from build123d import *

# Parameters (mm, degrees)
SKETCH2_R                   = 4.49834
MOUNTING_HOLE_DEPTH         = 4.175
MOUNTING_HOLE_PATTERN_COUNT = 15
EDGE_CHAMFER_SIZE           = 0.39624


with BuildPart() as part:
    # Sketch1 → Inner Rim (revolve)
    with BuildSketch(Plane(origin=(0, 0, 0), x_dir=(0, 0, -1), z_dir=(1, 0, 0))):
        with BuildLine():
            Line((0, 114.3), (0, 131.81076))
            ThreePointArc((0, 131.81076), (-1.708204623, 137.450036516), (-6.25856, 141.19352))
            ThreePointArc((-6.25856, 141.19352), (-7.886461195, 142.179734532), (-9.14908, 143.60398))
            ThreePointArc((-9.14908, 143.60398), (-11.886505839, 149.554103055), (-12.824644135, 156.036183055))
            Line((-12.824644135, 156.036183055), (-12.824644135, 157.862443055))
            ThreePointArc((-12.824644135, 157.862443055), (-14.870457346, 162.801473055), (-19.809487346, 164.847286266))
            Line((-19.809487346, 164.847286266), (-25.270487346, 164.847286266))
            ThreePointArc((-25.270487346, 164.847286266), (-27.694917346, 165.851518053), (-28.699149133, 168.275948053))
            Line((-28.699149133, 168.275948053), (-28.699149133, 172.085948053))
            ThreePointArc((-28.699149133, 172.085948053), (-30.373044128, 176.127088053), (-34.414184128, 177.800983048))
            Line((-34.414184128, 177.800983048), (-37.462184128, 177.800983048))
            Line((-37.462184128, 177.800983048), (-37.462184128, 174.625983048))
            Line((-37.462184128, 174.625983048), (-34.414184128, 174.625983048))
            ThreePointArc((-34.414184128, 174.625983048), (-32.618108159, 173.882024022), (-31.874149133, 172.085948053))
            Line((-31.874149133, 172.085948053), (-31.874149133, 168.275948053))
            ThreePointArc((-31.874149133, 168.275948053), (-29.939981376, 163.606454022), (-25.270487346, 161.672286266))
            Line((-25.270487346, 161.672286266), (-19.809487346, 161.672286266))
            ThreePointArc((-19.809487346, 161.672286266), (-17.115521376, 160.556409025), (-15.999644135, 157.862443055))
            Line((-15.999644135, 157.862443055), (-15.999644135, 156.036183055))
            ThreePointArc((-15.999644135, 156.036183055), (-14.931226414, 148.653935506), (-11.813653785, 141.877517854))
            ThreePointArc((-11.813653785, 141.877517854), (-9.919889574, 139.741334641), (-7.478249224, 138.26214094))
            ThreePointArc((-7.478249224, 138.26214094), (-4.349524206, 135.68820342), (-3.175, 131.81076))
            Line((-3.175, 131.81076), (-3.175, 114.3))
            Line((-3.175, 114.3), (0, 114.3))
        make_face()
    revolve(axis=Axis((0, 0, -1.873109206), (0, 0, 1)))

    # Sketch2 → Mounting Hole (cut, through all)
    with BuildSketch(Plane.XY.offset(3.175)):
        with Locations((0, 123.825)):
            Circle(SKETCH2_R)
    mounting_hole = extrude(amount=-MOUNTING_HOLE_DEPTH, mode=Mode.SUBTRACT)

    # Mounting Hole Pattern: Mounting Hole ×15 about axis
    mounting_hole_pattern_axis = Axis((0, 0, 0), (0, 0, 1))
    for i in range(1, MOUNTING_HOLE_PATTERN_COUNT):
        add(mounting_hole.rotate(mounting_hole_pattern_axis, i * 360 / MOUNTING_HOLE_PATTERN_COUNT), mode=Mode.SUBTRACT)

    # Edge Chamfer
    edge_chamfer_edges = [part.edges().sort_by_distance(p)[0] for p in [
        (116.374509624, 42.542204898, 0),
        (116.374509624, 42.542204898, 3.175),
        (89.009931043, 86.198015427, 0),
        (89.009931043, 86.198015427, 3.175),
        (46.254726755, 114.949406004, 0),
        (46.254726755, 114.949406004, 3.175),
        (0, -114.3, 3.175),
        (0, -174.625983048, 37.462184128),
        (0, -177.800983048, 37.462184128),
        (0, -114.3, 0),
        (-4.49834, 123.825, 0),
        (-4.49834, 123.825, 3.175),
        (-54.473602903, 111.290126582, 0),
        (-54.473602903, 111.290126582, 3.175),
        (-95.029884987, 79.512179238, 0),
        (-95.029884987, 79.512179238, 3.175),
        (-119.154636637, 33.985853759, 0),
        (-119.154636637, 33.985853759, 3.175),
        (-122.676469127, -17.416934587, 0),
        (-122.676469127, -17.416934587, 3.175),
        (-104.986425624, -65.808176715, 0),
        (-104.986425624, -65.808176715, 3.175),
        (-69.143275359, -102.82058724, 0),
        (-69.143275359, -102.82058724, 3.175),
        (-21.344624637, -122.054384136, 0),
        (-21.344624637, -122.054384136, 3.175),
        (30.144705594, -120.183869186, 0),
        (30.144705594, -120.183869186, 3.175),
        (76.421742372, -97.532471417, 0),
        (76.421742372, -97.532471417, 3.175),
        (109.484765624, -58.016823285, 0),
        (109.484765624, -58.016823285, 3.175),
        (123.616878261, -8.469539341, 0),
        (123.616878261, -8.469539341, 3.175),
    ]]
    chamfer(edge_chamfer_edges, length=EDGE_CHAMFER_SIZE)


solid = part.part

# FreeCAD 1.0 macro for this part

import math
import FreeCAD as App
import Part
import Sketcher

V = App.Vector
Q = App.Units.Quantity


def edges_at(feature, points):
    """Names of the edges that pass closest to the given points."""
    edges = feature.Shape.Edges
    near = lambda p: min(range(len(edges)), key=lambda i: edges[i].distToShape(Part.Vertex(*p))[0])
    return sorted({f"Edge{near(p) + 1}" for p in points})

doc = App.newDocument("Part")
body = doc.addObject("PartDesign::Body", "Body")

sketch1 = doc.addObject("Sketcher::SketchObject", "Sketch")
body.addObject(sketch1)
sketch1.AttachmentSupport = (doc.YZ_Plane, [""])
sketch1.MapMode = "FlatFace"
sketch1.addGeometry([
    Part.LineSegment(V(114.3, 0, 0), V(131.8, 0, 0)),
    Part.ArcOfCircle(Part.Circle(V(131.8, 10.2, 0), V(0, 0, 1), 10.2), math.radians(-90), math.radians(-23)),
    Part.ArcOfCircle(Part.Circle(V(147.1, 3.8, 0), V(0, 0, 1), 6.4), math.radians(123), math.radians(157)),
    Part.ArcOfCircle(Part.Circle(V(156, -10, 0), V(0, 0, 1), 22.9), math.radians(90), math.radians(123)),
    Part.LineSegment(V(156, 12.8, 0), V(157.9, 12.8, 0)),
    Part.ArcOfCircle(Part.Circle(V(157.9, 19.8, 0), V(0, 0, 1), 7), math.radians(-90), math.radians(0)),
    Part.LineSegment(V(164.8, 19.8, 0), V(164.8, 25.3, 0)),
    Part.ArcOfCircle(Part.Circle(V(168.3, 25.3, 0), V(0, 0, 1), 3.4), math.radians(90), math.radians(180)),
    Part.LineSegment(V(168.3, 28.7, 0), V(172.1, 28.7, 0)),
    Part.ArcOfCircle(Part.Circle(V(172.1, 34.4, 0), V(0, 0, 1), 5.7), math.radians(-90), math.radians(0)),
    Part.LineSegment(V(177.8, 34.4, 0), V(177.8, 37.5, 0)),
    Part.LineSegment(V(177.8, 37.5, 0), V(174.6, 37.5, 0)),
    Part.LineSegment(V(174.6, 37.5, 0), V(174.6, 34.4, 0)),
    Part.ArcOfCircle(Part.Circle(V(172.1, 34.4, 0), V(0, 0, 1), 2.5), math.radians(-90), math.radians(0)),
    Part.LineSegment(V(172.1, 31.9, 0), V(168.3, 31.9, 0)),
    Part.ArcOfCircle(Part.Circle(V(168.3, 25.3, 0), V(0, 0, 1), 6.6), math.radians(90), math.radians(180)),
    Part.LineSegment(V(161.7, 25.3, 0), V(161.7, 19.8, 0)),
    Part.ArcOfCircle(Part.Circle(V(157.9, 19.8, 0), V(0, 0, 1), 3.8), math.radians(-90), math.radians(0)),
    Part.LineSegment(V(157.9, 16, 0), V(156, 16, 0)),
    Part.ArcOfCircle(Part.Circle(V(156, -10, 0), V(0, 0, 1), 26), math.radians(90), math.radians(123)),
    Part.ArcOfCircle(Part.Circle(V(147.1, 3.8, 0), V(0, 0, 1), 9.5), math.radians(123), math.radians(157)),
    Part.ArcOfCircle(Part.Circle(V(131.8, 10.2, 0), V(0, 0, 1), 7), math.radians(-90), math.radians(-23)),
    Part.LineSegment(V(131.8, 3.2, 0), V(114.3, 3.2, 0)),
    Part.LineSegment(V(114.3, 3.2, 0), V(114.3, 0, 0)),
], False)
sketch1.addConstraint([
    Sketcher.Constraint("Tangent", 0, 2, 1, 1),
    Sketcher.Constraint("Tangent", 1, 2, 2, 2),
    Sketcher.Constraint("Tangent", 2, 1, 3, 2),
    Sketcher.Constraint("Tangent", 3, 1, 4, 1),
    Sketcher.Constraint("Tangent", 4, 2, 5, 1),
    Sketcher.Constraint("Tangent", 5, 2, 6, 1),
    Sketcher.Constraint("Tangent", 6, 2, 7, 2),
    Sketcher.Constraint("Tangent", 7, 1, 8, 1),
    Sketcher.Constraint("Tangent", 8, 2, 9, 1),
    Sketcher.Constraint("Tangent", 9, 2, 10, 1),
    Sketcher.Constraint("Coincident", 10, 2, 11, 1),
    Sketcher.Constraint("Coincident", 11, 2, 12, 1),
    Sketcher.Constraint("Tangent", 12, 2, 13, 2),
    Sketcher.Constraint("Tangent", 13, 1, 14, 1),
    Sketcher.Constraint("Tangent", 14, 2, 15, 1),
    Sketcher.Constraint("Tangent", 15, 2, 16, 1),
    Sketcher.Constraint("Tangent", 16, 2, 17, 2),
    Sketcher.Constraint("Tangent", 17, 1, 18, 1),
    Sketcher.Constraint("Tangent", 18, 2, 19, 1),
    Sketcher.Constraint("Tangent", 19, 2, 20, 1),
    Sketcher.Constraint("Tangent", 20, 2, 21, 2),
    Sketcher.Constraint("Tangent", 21, 1, 22, 1),
    Sketcher.Constraint("Coincident", 22, 2, 23, 1),
    Sketcher.Constraint("Coincident", 23, 2, 0, 1),
    Sketcher.Constraint("Horizontal", 0),
    Sketcher.Constraint("Horizontal", 4),
    Sketcher.Constraint("Vertical", 6),
    Sketcher.Constraint("Horizontal", 8),
    Sketcher.Constraint("Vertical", 10),
    Sketcher.Constraint("Horizontal", 11),
    Sketcher.Constraint("Vertical", 12),
    Sketcher.Constraint("Horizontal", 14),
    Sketcher.Constraint("Vertical", 16),
    Sketcher.Constraint("Horizontal", 18),
    Sketcher.Constraint("Horizontal", 22),
    Sketcher.Constraint("Vertical", 23),
    Sketcher.Constraint("Coincident", 13, 3, 9, 3),
    Sketcher.Constraint("Coincident", 15, 3, 7, 3),
    Sketcher.Constraint("Coincident", 17, 3, 5, 3),
    Sketcher.Constraint("Coincident", 19, 3, 3, 3),
    Sketcher.Constraint("Coincident", 20, 3, 2, 3),
    Sketcher.Constraint("Coincident", 21, 3, 1, 3),
    Sketcher.Constraint("PointOnObject", 0, 2, -1),
    Sketcher.Constraint("DistanceX", 8, 1, 8, 2, Q("0.15 in")),
    Sketcher.Constraint("DistanceY", 10, 1, 10, 2, Q("0.12 in")),
    Sketcher.Constraint("DistanceX", -1, 1, 22, 2, Q("4.5 in")),
    Sketcher.Constraint("Radius", 1, Q("0.4001001 in")),
    Sketcher.Constraint("Radius", 21, Q("0.2751001 in")),
    Sketcher.Constraint("DistanceY", 6, 1, 6, 2, Q("0.215 in")),
    Sketcher.Constraint("DistanceX", 0, 1, 0, 2, Q("0.6894 in")),
    Sketcher.Constraint("DistanceX", 4, 1, 4, 2, Q("0.0719 in")),
    Sketcher.Constraint("Radius", 2, 6.35165),
    Sketcher.Constraint("Radius", 3, 22.863081),
    Sketcher.Constraint("Radius", 7, 3.428662),
    Sketcher.Constraint("DistanceX", -1, 1, 1, 2, Q("5.5588 in")),
    Sketcher.Constraint("DistanceX", -1, 1, 2, 1, Q("5.6537 in")),
    Sketcher.Constraint("Radius", 5, 6.984843),
    Sketcher.Constraint("Radius", 9, 5.715035),
])
revolution = doc.addObject("PartDesign::Revolution", "Revolution")
body.addObject(revolution)
revolution.Profile = sketch1
revolution.ReferenceAxis = (sketch1, ["V_Axis"])
revolution.Angle = 360

sketch2 = doc.addObject("Sketcher::SketchObject", "Sketch001")
body.addObject(sketch2)
sketch2.AttachmentSupport = (doc.XY_Plane, [""])
sketch2.MapMode = "FlatFace"
sketch2.AttachmentOffset = App.Placement(V(0, 0, 0.125 * 25.4), App.Rotation())
sketch2.addGeometry(Part.Circle(V(0, 123.8, 0), V(0, 0, 1), 4.5), False)
sketch2.addConstraint([
    Sketcher.Constraint("PointOnObject", 0, 3, -2),
    Sketcher.Constraint("Diameter", 0, Q("0.3542 in")),
    Sketcher.Constraint("DistanceY", -1, 1, 0, 3, Q("4.875 in")),
])
pocket1 = doc.addObject("PartDesign::Pocket", "Pocket")
body.addObject(pocket1)
pocket1.Profile = sketch2
pocket1.Type = "ThroughAll"
doc.recompute()

polarpattern = doc.addObject("PartDesign::PolarPattern", "PolarPattern")
body.addObject(polarpattern)
polarpattern.Originals = [pocket1]
polarpattern.Axis = (doc.Z_Axis, [""])
polarpattern.Angle = 360
polarpattern.Occurrences = 15
body.Tip = polarpattern
doc.recompute()

chamfer = doc.addObject("PartDesign::Chamfer", "Chamfer")
body.addObject(chamfer)
chamfer.Base = (polarpattern, edges_at(polarpattern, [
    (116.375, 42.542, 0),
    (116.375, 42.542, 3.175),
    (89.01, 86.198, 0),
    (89.01, 86.198, 3.175),
    (46.255, 114.949, 0),
    (46.255, 114.949, 3.175),
    (0, -114.3, 3.175),
    (0, -174.626, 37.462),
    (0, -177.801, 37.462),
    (0, -114.3, 0),
    (-4.498, 123.825, 0),
    (-4.498, 123.825, 3.175),
    (-54.474, 111.29, 0),
    (-54.474, 111.29, 3.175),
    (-95.03, 79.512, 0),
    (-95.03, 79.512, 3.175),
    (-119.155, 33.986, 0),
    (-119.155, 33.986, 3.175),
    (-122.676, -17.417, 0),
    (-122.676, -17.417, 3.175),
    (-104.986, -65.808, 0),
    (-104.986, -65.808, 3.175),
    (-69.143, -102.821, 0),
    (-69.143, -102.821, 3.175),
    (-21.345, -122.054, 0),
    (-21.345, -122.054, 3.175),
    (30.145, -120.184, 0),
    (30.145, -120.184, 3.175),
    (76.422, -97.532, 0),
    (76.422, -97.532, 3.175),
    (109.485, -58.017, 0),
    (109.485, -58.017, 3.175),
    (123.617, -8.47, 0),
    (123.617, -8.47, 3.175),
]))
chamfer.Size = Q("0.0156 in")

doc.recompute()
